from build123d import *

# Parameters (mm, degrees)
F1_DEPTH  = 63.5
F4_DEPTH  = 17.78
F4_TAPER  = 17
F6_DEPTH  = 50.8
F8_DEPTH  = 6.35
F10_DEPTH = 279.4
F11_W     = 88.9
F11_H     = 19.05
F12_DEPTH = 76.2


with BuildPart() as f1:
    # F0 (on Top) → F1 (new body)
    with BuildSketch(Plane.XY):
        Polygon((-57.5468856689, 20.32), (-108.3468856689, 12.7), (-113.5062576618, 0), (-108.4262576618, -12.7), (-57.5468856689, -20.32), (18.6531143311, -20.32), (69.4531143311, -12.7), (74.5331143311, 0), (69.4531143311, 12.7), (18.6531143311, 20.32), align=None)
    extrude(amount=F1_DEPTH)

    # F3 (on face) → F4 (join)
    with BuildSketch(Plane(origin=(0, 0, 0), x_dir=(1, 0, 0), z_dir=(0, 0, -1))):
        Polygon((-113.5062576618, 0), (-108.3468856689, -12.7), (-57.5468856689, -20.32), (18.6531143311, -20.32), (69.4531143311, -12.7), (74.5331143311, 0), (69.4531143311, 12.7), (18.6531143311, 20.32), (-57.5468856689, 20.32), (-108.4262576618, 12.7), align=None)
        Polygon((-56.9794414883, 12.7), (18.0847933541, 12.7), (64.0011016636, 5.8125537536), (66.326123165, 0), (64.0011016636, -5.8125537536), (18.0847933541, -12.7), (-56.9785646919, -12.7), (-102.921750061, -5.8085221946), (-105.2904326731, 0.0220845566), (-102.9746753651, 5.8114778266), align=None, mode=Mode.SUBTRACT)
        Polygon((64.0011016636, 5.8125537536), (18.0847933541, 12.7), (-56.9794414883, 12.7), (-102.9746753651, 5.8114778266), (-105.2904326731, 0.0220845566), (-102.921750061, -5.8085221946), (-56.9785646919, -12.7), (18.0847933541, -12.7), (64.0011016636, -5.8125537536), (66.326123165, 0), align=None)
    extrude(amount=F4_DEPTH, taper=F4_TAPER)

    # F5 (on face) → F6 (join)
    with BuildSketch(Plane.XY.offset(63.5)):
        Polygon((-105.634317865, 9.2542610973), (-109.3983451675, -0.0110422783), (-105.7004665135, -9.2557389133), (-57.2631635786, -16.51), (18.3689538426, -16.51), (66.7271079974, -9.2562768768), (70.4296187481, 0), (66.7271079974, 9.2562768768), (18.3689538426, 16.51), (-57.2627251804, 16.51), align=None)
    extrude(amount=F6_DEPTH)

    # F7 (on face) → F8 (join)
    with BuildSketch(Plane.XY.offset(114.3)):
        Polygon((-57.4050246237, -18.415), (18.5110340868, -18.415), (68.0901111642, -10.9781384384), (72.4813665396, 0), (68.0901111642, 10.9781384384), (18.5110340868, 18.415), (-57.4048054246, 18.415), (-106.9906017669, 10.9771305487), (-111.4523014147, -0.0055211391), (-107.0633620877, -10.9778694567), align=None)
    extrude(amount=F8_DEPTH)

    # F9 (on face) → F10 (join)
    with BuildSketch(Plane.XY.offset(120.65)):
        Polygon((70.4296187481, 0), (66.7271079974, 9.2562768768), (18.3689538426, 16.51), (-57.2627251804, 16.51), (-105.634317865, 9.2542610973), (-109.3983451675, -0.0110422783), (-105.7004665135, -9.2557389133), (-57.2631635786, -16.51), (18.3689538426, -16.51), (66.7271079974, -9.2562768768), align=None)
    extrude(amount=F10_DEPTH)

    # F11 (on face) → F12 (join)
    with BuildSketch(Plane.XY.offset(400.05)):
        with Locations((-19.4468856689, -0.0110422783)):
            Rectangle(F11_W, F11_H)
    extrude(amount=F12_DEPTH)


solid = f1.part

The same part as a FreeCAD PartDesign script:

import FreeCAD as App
import Part
import Sketcher
from FreeCAD import Vector
Q = App.Units.Quantity

doc = App.newDocument("Part")
body = doc.addObject("PartDesign::Body", "Body")

# Sketch on XY plane
sketch1 = body.newObject("Sketcher::SketchObject", "Sketch")
sketch1.AttachmentSupport = (doc.getObject("XY_Plane"), [""])
sketch1.MapMode = "FlatFace"
sketch1.addGeometry(Part.LineSegment(Vector(-57.546886, 20.32, 0), Vector(-108.346886, 12.7, 0)), False)
sketch1.addGeometry(Part.LineSegment(Vector(-108.346886, 12.7, 0), Vector(-113.506258, 0, 0)), False)
sketch1.addGeometry(Part.LineSegment(Vector(-113.506258, 0, 0), Vector(-108.426258, -12.7, 0)), False)
sketch1.addGeometry(Part.LineSegment(Vector(-108.426258, -12.7, 0), Vector(-57.546886, -20.32, 0)), False)
sketch1.addGeometry(Part.LineSegment(Vector(-57.546886, -20.32, 0), Vector(18.653114, -20.32, 0)), False)
sketch1.addGeometry(Part.LineSegment(Vector(18.653114, -20.32, 0), Vector(69.453114, -12.7, 0)), False)
sketch1.addGeometry(Part.LineSegment(Vector(69.453114, -12.7, 0), Vector(74.533114, 0, 0)), False)
sketch1.addGeometry(Part.LineSegment(Vector(74.533114, 0, 0), Vector(69.453114, 12.7, 0)), False)
sketch1.addGeometry(Part.LineSegment(Vector(69.453114, 12.7, 0), Vector(18.653114, 20.32, 0)), False)
sketch1.addGeometry(Part.LineSegment(Vector(18.653114, 20.32, 0), Vector(-57.546886, 20.32, 0)), False)
sketch1.addConstraint(Sketcher.Constraint("Coincident", 0, 2, 1, 1))
sketch1.addConstraint(Sketcher.Constraint("Coincident", 1, 2, 2, 1))
sketch1.addConstraint(Sketcher.Constraint("Coincident", 2, 2, 3, 1))
sketch1.addConstraint(Sketcher.Constraint("Coincident", 3, 2, 4, 1))
sketch1.addConstraint(Sketcher.Constraint("Coincident", 4, 2, 5, 1))
sketch1.addConstraint(Sketcher.Constraint("Coincident", 5, 2, 6, 1))
sketch1.addConstraint(Sketcher.Constraint("Coincident", 6, 2, 7, 1))
sketch1.addConstraint(Sketcher.Constraint("Coincident", 7, 2, 8, 1))
sketch1.addConstraint(Sketcher.Constraint("Coincident", 8, 2, 9, 1))
sketch1.addConstraint(Sketcher.Constraint("Coincident", 9, 2, 0, 1))
sketch1.addConstraint(Sketcher.Constraint("Horizontal", 4))
sketch1.addConstraint(Sketcher.Constraint("Horizontal", 9))
sketch1.addConstraint(Sketcher.Constraint("Symmetric", 5, 2, 7, 2, -1))
sketch1.addConstraint(Sketcher.Constraint("Symmetric", 4, 2, 8, 2, -1))
sketch1.addConstraint(Sketcher.Constraint("PointOnObject", 1, 2, -1))
sketch1.addConstraint(Sketcher.Constraint("PointOnObject", 6, 2, -1))
sketch1.addConstraint(Sketcher.Constraint("Parallel", 0, 5))
sketch1.addConstraint(Sketcher.Constraint("Parallel", 2, 7))
sketch1.addConstraint(Sketcher.Constraint("Horizontal", 2, 2, 5, 2))
sketch1.addConstraint(Sketcher.Constraint("Horizontal", 0, 2, 7, 2))
sketch1.addConstraint(Sketcher.Constraint("Vertical", 3, 2, 9, 2))
sketch1.addConstraint(Sketcher.Constraint("DistanceX", 4, 1, 4, 2, Q("3 in")))
sketch1.addConstraint(Sketcher.Constraint("DistanceY", 2, 2, 0, 2, Q("1 in")))
sketch1.addConstraint(Sketcher.Constraint("DistanceX", 0, 2, 3, 2, Q("2 in")))
sketch1.addConstraint(Sketcher.Constraint("DistanceY", 3, 2, -1, 1, Q("0.8 in")))
sketch1.addConstraint(Sketcher.Constraint("DistanceX", 1, 2, 2, 2, Q("0.2 in")))
sketch1.addConstraint(Sketcher.Constraint("DistanceX", 1, 2, 0, 2, Q("0.2031249 in")))
sketch1.addConstraint(Sketcher.Constraint("DistanceX", 0, 2, -1, 1, 108.346886))
pad1 = body.newObject("PartDesign::Pad", "Pad")
pad1.Profile = sketch1
pad1.Length = Q("2.5 in")

# Sketch on XY plane
sketch2 = body.newObject("Sketcher::SketchObject", "Sketch001")
sketch2.AttachmentSupport = (doc.getObject("XY_Plane"), [""])
sketch2.MapMode = "FlatFace"
sketch2.addGeometry(Part.LineSegment(Vector(-113.506258, 0, 0), Vector(-108.346886, 12.7, 0)), False)
sketch2.addGeometry(Part.LineSegment(Vector(-108.346886, 12.7, 0), Vector(-57.546886, 20.32, 0)), False)
sketch2.addGeometry(Part.LineSegment(Vector(-57.546886, 20.32, 0), Vector(18.653114, 20.32, 0)), False)
sketch2.addGeometry(Part.LineSegment(Vector(18.653114, 20.32, 0), Vector(69.453114, 12.7, 0)), False)
sketch2.addGeometry(Part.LineSegment(Vector(69.453114, 12.7, 0), Vector(74.533114, 0, 0)), False)
sketch2.addGeometry(Part.LineSegment(Vector(74.533114, 0, 0), Vector(69.453114, -12.7, 0)), False)
sketch2.addGeometry(Part.LineSegment(Vector(69.453114, -12.7, 0), Vector(18.653114, -20.32, 0)), False)
sketch2.addGeometry(Part.LineSegment(Vector(18.653114, -20.32, 0), Vector(-57.546886, -20.32, 0)), False)
sketch2.addGeometry(Part.LineSegment(Vector(-57.546886, -20.32, 0), Vector(-108.426258, -12.7, 0)), False)
sketch2.addGeometry(Part.LineSegment(Vector(-108.426258, -12.7, 0), Vector(-113.506258, 0, 0)), False)
sketch2.addConstraint(Sketcher.Constraint("Coincident", 0, 2, 1, 1))
sketch2.addConstraint(Sketcher.Constraint("Coincident", 1, 2, 2, 1))
sketch2.addConstraint(Sketcher.Constraint("Coincident", 2, 2, 3, 1))
sketch2.addConstraint(Sketcher.Constraint("Coincident", 3, 2, 4, 1))
sketch2.addConstraint(Sketcher.Constraint("Coincident", 4, 2, 5, 1))
sketch2.addConstraint(Sketcher.Constraint("Coincident", 5, 2, 6, 1))
sketch2.addConstraint(Sketcher.Constraint("Coincident", 6, 2, 7, 1))
sketch2.addConstraint(Sketcher.Constraint("Coincident", 7, 2, 8, 1))
sketch2.addConstraint(Sketcher.Constraint("Coincident", 8, 2, 9, 1))
sketch2.addConstraint(Sketcher.Constraint("Coincident", 9, 2, 0, 1))
sketch2.addConstraint(Sketcher.Constraint("Horizontal", 2))
sketch2.addConstraint(Sketcher.Constraint("Horizontal", 7))
sketch2.addConstraint(Sketcher.Constraint("Symmetric", 3, 2, 5, 2, -1))
sketch2.addConstraint(Sketcher.Constraint("Symmetric", 2, 2, 6, 2, -1))
sketch2.addConstraint(Sketcher.Constraint("PointOnObject", 4, 2, -1))
sketch2.addConstraint(Sketcher.Constraint("PointOnObject", 9, 2, -1))
sketch2.addConstraint(Sketcher.Constraint("Parallel", 1, 6))
sketch2.addConstraint(Sketcher.Constraint("Parallel", 4, 9))
sketch2.addConstraint(Sketcher.Constraint("Horizontal", 0, 2, 3, 2))
sketch2.addConstraint(Sketcher.Constraint("Horizontal", 5, 2, 8, 2))
sketch2.addConstraint(Sketcher.Constraint("Vertical", 1, 2, 7, 2))
sketch2.addConstraint(Sketcher.Constraint("DistanceX", 2, 1, 2, 2, Q("3 in")))
sketch2.addConstraint(Sketcher.Constraint("DistanceX", 0, 2, 1, 2, Q("2 in")))
sketch2.addConstraint(Sketcher.Constraint("DistanceY", 5, 2, 3, 2, Q("1 in")))
sketch2.addConstraint(Sketcher.Constraint("DistanceY", -1, 1, 1, 2, Q("0.8 in")))
sketch2.addConstraint(Sketcher.Constraint("DistanceX", 3, 2, 4, 2, Q("0.2 in")))
sketch2.addConstraint(Sketcher.Constraint("DistanceX", 9, 2, 0, 2, Q("0.2031249 in")))
sketch2.addConstraint(Sketcher.Constraint("DistanceX", 0, 2, -1, 1, 108.346886))
pad2 = body.newObject("PartDesign::Pad", "Pad001")
pad2.Profile = sketch2
pad2.Length = Q("0.7 in")
pad2.Reversed = True
pad2.TaperAngle = -17

# Sketch on XY plane
sketch3 = body.newObject("Sketcher::SketchObject", "Sketch002")
sketch3.AttachmentSupport = (doc.getObject("XY_Plane"), [""])
sketch3.MapMode = "FlatFace"
sketch3.AttachmentOffset = App.Placement(Vector(0, 0, 2.5 * 25.4), App.Rotation())
sketch3.addGeometry(Part.LineSegment(Vector(-105.634318, 9.254261, 0), Vector(-109.398345, -0.011042, 0)), False)
sketch3.addGeometry(Part.LineSegment(Vector(-109.398345, -0.011042, 0), Vector(-105.700467, -9.255739, 0)), False)
sketch3.addGeometry(Part.LineSegment(Vector(-105.700467, -9.255739, 0), Vector(-57.263164, -16.51, 0)), False)
sketch3.addGeometry(Part.LineSegment(Vector(-57.263164, -16.51, 0), Vector(18.368954, -16.51, 0)), False)
sketch3.addGeometry(Part.LineSegment(Vector(18.368954, -16.51, 0), Vector(66.727108, -9.256277, 0)), False)
sketch3.addGeometry(Part.LineSegment(Vector(66.727108, -9.256277, 0), Vector(70.429619, 0, 0)), False)
sketch3.addGeometry(Part.LineSegment(Vector(70.429619, 0, 0), Vector(66.727108, 9.256277, 0)), False)
sketch3.addGeometry(Part.LineSegment(Vector(66.727108, 9.256277, 0), Vector(18.368954, 16.51, 0)), False)
sketch3.addGeometry(Part.LineSegment(Vector(18.368954, 16.51, 0), Vector(-57.262725, 16.51, 0)), False)
sketch3.addGeometry(Part.LineSegment(Vector(-57.262725, 16.51, 0), Vector(-105.634318, 9.254261, 0)), False)
sketch3.addConstraint(Sketcher.Constraint("Coincident", 0, 2, 1, 1))
sketch3.addConstraint(Sketcher.Constraint("Coincident", 1, 2, 2, 1))
sketch3.addConstraint(Sketcher.Constraint("Coincident", 2, 2, 3, 1))
sketch3.addConstraint(Sketcher.Constraint("Coincident", 3, 2, 4, 1))
sketch3.addConstraint(Sketcher.Constraint("Coincident", 4, 2, 5, 1))
sketch3.addConstraint(Sketcher.Constraint("Coincident", 5, 2, 6, 1))
sketch3.addConstraint(Sketcher.Constraint("Coincident", 6, 2, 7, 1))
sketch3.addConstraint(Sketcher.Constraint("Coincident", 7, 2, 8, 1))
sketch3.addConstraint(Sketcher.Constraint("Coincident", 8, 2, 9, 1))
sketch3.addConstraint(Sketcher.Constraint("Coincident", 9, 2, 0, 1))
sketch3.addConstraint(Sketcher.Constraint("Horizontal", 3))
sketch3.addConstraint(Sketcher.Constraint("Horizontal", 8))
sketch3.addConstraint(Sketcher.Constraint("Symmetric", 4, 2, 6, 2, -1))
sketch3.addConstraint(Sketcher.Constraint("Symmetric", 3, 2, 7, 2, -1))
sketch3.addConstraint(Sketcher.Constraint("PointOnObject", 5, 2, -1))
sketch3.addConstraint(Sketcher.Constraint("Parallel", 1, 6))
sketch3.addConstraint(Sketcher.Constraint("Parallel", 4, 9))
sketch3.addConstraint(Sketcher.Constraint("DistanceY", 3, 2, 7, 2, Q("1.3 in")))
sketch3.addConstraint(Sketcher.Constraint("DistanceX", 8, 2, 8, 1, 75.631679))
sketch3.addConstraint(Sketcher.Constraint("DistanceX", 0, 2, 3, 2, 127.767299))
sketch3.addConstraint(Sketcher.Constraint("DistanceY", 1, 2, 9, 2, 18.51))
sketch3.addConstraint(Sketcher.Constraint("Distance", 2, 48.977511))
sketch3.addConstraint(Sketcher.Constraint("DistanceX", 3, 1, 3, 2, 75.632117))
sketch3.addConstraint(Sketcher.Constraint("DistanceY", 1, 2, -1, 1, 9.255739))
sketch3.addConstraint(Sketcher.Constraint("DistanceX", -1, 1, 5, 2, 70.429619))
sketch3.addConstraint(Sketcher.Constraint("DistanceX", 2, 2, 4, 2, 123.990272))
sketch3.addConstraint(Sketcher.Constraint("DistanceX", 4, 2, 5, 2, 3.702511))
sketch3.addConstraint(Sketcher.Constraint("DistanceX", 1, 2, 9, 2, 0.066149))
pad3 = body.newObject("PartDesign::Pad", "Pad002")
pad3.Profile = sketch3
pad3.Length = Q("2 in")

# Sketch on XY plane
sketch4 = body.newObject("Sketcher::SketchObject", "Sketch003")
sketch4.AttachmentSupport = (doc.getObject("XY_Plane"), [""])
sketch4.MapMode = "FlatFace"
sketch4.AttachmentOffset = App.Placement(Vector(0, 0, 4.5 * 25.4), App.Rotation())
sketch4.addGeometry(Part.LineSegment(Vector(-57.405025, -18.415, 0), Vector(18.511034, -18.415, 0)), False)
sketch4.addGeometry(Part.LineSegment(Vector(18.511034, -18.415, 0), Vector(68.090111, -10.978138, 0)), False)
sketch4.addGeometry(Part.LineSegment(Vector(68.090111, -10.978138, 0), Vector(72.481367, 0, 0)), False)
sketch4.addGeometry(Part.LineSegment(Vector(72.481367, 0, 0), Vector(68.090111, 10.978138, 0)), False)
sketch4.addGeometry(Part.LineSegment(Vector(68.090111, 10.978138, 0), Vector(18.511034, 18.415, 0)), False)
sketch4.addGeometry(Part.LineSegment(Vector(18.511034, 18.415, 0), Vector(-57.404805, 18.415, 0)), False)
sketch4.addGeometry(Part.LineSegment(Vector(-57.404805, 18.415, 0), Vector(-106.990602, 10.977131, 0)), False)
sketch4.addGeometry(Part.LineSegment(Vector(-106.990602, 10.977131, 0), Vector(-111.452301, -0.005521, 0)), False)
sketch4.addGeometry(Part.LineSegment(Vector(-111.452301, -0.005521, 0), Vector(-107.063362, -10.977869, 0)), False)
sketch4.addGeometry(Part.LineSegment(Vector(-107.063362, -10.977869, 0), Vector(-57.405025, -18.415, 0)), False)
sketch4.addConstraint(Sketcher.Constraint("Coincident", 0, 2, 1, 1))
sketch4.addConstraint(Sketcher.Constraint("Coincident", 1, 2, 2, 1))
sketch4.addConstraint(Sketcher.Constraint("Coincident", 2, 2, 3, 1))
sketch4.addConstraint(Sketcher.Constraint("Coincident", 3, 2, 4, 1))
sketch4.addConstraint(Sketcher.Constraint("Coincident", 4, 2, 5, 1))
sketch4.addConstraint(Sketcher.Constraint("Coincident", 5, 2, 6, 1))
sketch4.addConstraint(Sketcher.Constraint("Coincident", 6, 2, 7, 1))
sketch4.addConstraint(Sketcher.Constraint("Coincident", 7, 2, 8, 1))
sketch4.addConstraint(Sketcher.Constraint("Coincident", 8, 2, 9, 1))
sketch4.addConstraint(Sketcher.Constraint("Coincident", 9, 2, 0, 1))
sketch4.addConstraint(Sketcher.Constraint("Horizontal", 0))
sketch4.addConstraint(Sketcher.Constraint("Horizontal", 5))
sketch4.addConstraint(Sketcher.Constraint("Symmetric", 1, 2, 3, 2, -1))
sketch4.addConstraint(Sketcher.Constraint("Symmetric", 0, 2, 4, 2, -1))
sketch4.addConstraint(Sketcher.Constraint("PointOnObject", 2, 2, -1))
sketch4.addConstraint(Sketcher.Constraint("Parallel", 1, 6))
sketch4.addConstraint(Sketcher.Constraint("Parallel", 3, 8))
sketch4.addConstraint(Sketcher.Constraint("DistanceY", 0, 2, 4, 2, Q("1.45 in")))
sketch4.addConstraint(Sketcher.Constraint("DistanceX", 0, 1, 0, 2, 75.916059))
sketch4.addConstraint(Sketcher.Constraint("DistanceX", 5, 2, 5, 1, 75.91584))
sketch4.addConstraint(Sketcher.Constraint("DistanceX", 6, 2, -1, 1, 106.990602))
sketch4.addConstraint(Sketcher.Constraint("DistanceX", 7, 2, -1, 1, 111.452301))
sketch4.addConstraint(Sketcher.Constraint("DistanceY", 8, 2, 6, 2, 21.955))
sketch4.addConstraint(Sketcher.Constraint("Distance", 1, 50.133739))
sketch4.addConstraint(Sketcher.Constraint("Distance", 7, 11.854341))
sketch4.addConstraint(Sketcher.Constraint("Distance", 8, 11.817581))
sketch4.addConstraint(Sketcher.Constraint("DistanceX", -1, 1, 1, 2, 68.090111))
sketch4.addConstraint(Sketcher.Constraint("DistanceY", 1, 2, -1, 1, 10.978138))
pad4 = body.newObject("PartDesign::Pad", "Pad003")
pad4.Profile = sketch4
pad4.Length = Q("0.25 in")

# Sketch on XY plane
sketch5 = body.newObject("Sketcher::SketchObject", "Sketch004")
sketch5.AttachmentSupport = (doc.getObject("XY_Plane"), [""])
sketch5.MapMode = "FlatFace"
sketch5.AttachmentOffset = App.Placement(Vector(0, 0, 4.75 * 25.4), App.Rotation())
sketch5.addGeometry(Part.LineSegment(Vector(70.429619, 0, 0), Vector(66.727108, 9.256277, 0)), False)
sketch5.addGeometry(Part.LineSegment(Vector(66.727108, 9.256277, 0), Vector(18.368954, 16.51, 0)), False)
sketch5.addGeometry(Part.LineSegment(Vector(18.368954, 16.51, 0), Vector(-57.262725, 16.51, 0)), False)
sketch5.addGeometry(Part.LineSegment(Vector(-57.262725, 16.51, 0), Vector(-105.634318, 9.254261, 0)), False)
sketch5.addGeometry(Part.LineSegment(Vector(-105.634318, 9.254261, 0), Vector(-109.398345, -0.011042, 0)), False)
sketch5.addGeometry(Part.LineSegment(Vector(-109.398345, -0.011042, 0), Vector(-105.700467, -9.255739, 0)), False)
sketch5.addGeometry(Part.LineSegment(Vector(-105.700467, -9.255739, 0), Vector(-57.263164, -16.51, 0)), False)
sketch5.addGeometry(Part.LineSegment(Vector(-57.263164, -16.51, 0), Vector(18.368954, -16.51, 0)), False)
sketch5.addGeometry(Part.LineSegment(Vector(18.368954, -16.51, 0), Vector(66.727108, -9.256277, 0)), False)
sketch5.addGeometry(Part.LineSegment(Vector(66.727108, -9.256277, 0), Vector(70.429619, 0, 0)), False)
sketch5.addConstraint(Sketcher.Constraint("Coincident", 0, 2, 1, 1))
sketch5.addConstraint(Sketcher.Constraint("Coincident", 1, 2, 2, 1))
sketch5.addConstraint(Sketcher.Constraint("Coincident", 2, 2, 3, 1))
sketch5.addConstraint(Sketcher.Constraint("Coincident", 3, 2, 4, 1))
sketch5.addConstraint(Sketcher.Constraint("Coincident", 4, 2, 5, 1))
sketch5.addConstraint(Sketcher.Constraint("Coincident", 5, 2, 6, 1))
sketch5.addConstraint(Sketcher.Constraint("Coincident", 6, 2, 7, 1))
sketch5.addConstraint(Sketcher.Constraint("Coincident", 7, 2, 8, 1))
sketch5.addConstraint(Sketcher.Constraint("Coincident", 8, 2, 9, 1))
sketch5.addConstraint(Sketcher.Constraint("Coincident", 9, 2, 0, 1))
sketch5.addConstraint(Sketcher.Constraint("Horizontal", 2))
sketch5.addConstraint(Sketcher.Constraint("Horizontal", 7))
sketch5.addConstraint(Sketcher.Constraint("Symmetric", 1, 2, 7, 2, -1))
sketch5.addConstraint(Sketcher.Constraint("Symmetric", 0, 2, 8, 2, -1))
sketch5.addConstraint(Sketcher.Constraint("PointOnObject", 9, 2, -1))
sketch5.addConstraint(Sketcher.Constraint("Parallel", 0, 5))
sketch5.addConstraint(Sketcher.Constraint("Parallel", 3, 8))
sketch5.addConstraint(Sketcher.Constraint("DistanceY", 6, 2, 2, 2, Q("1.3 in")))
sketch5.addConstraint(Sketcher.Constraint("DistanceX", 2, 2, 2, 1, 75.631679))
sketch5.addConstraint(Sketcher.Constraint("DistanceX", 4, 2, 1, 2, 127.767299))
sketch5.addConstraint(Sketcher.Constraint("DistanceY", 5, 2, 3, 2, 18.51))
sketch5.addConstraint(Sketcher.Constraint("Distance", 6, 48.977511))
sketch5.addConstraint(Sketcher.Constraint("DistanceX", 7, 1, 7, 2, 75.632117))
sketch5.addConstraint(Sketcher.Constraint("DistanceY", -1, 1, 3, 2, 9.254261))
sketch5.addConstraint(Sketcher.Constraint("DistanceX", -1, 1, 9, 2, 70.429619))
sketch5.addConstraint(Sketcher.Constraint("DistanceX", 3, 2, 1, 2, 124.003272))
sketch5.addConstraint(Sketcher.Constraint("DistanceY", 4, 2, 0, 2, 9.267319))
sketch5.addConstraint(Sketcher.Constraint("DistanceX", 6, 2, 8, 2, 123.990272))
pad5 = body.newObject("PartDesign::Pad", "Pad004")
pad5.Profile = sketch5
pad5.Length = Q("11 in")

# Sketch on XY plane
sketch6 = body.newObject("Sketcher::SketchObject", "Sketch005")
sketch6.AttachmentSupport = (doc.getObject("XY_Plane"), [""])
sketch6.MapMode = "FlatFace"
sketch6.AttachmentOffset = App.Placement(Vector(0, 0, 15.75 * 25.4), App.Rotation())
sketch6.addGeometry(Part.LineSegment(Vector(-63.896886, 9.513958, 0), Vector(-63.896886, -9.536042, 0)), False)
sketch6.addGeometry(Part.LineSegment(Vector(-63.896886, -9.536042, 0), Vector(25.003114, -9.536042, 0)), False)
sketch6.addGeometry(Part.LineSegment(Vector(25.003114, -9.536042, 0), Vector(25.003114, 9.513958, 0)), False)
sketch6.addGeometry(Part.LineSegment(Vector(25.003114, 9.513958, 0), Vector(-63.896886, 9.513958, 0)), False)
sketch6.addConstraint(Sketcher.Constraint("Coincident", 0, 2, 1, 1))
sketch6.addConstraint(Sketcher.Constraint("Coincident", 1, 2, 2, 1))
sketch6.addConstraint(Sketcher.Constraint("Coincident", 2, 2, 3, 1))
sketch6.addConstraint(Sketcher.Constraint("Coincident", 3, 2, 0, 1))
sketch6.addConstraint(Sketcher.Constraint("Vertical", 0))
sketch6.addConstraint(Sketcher.Constraint("Horizontal", 1))
sketch6.addConstraint(Sketcher.Constraint("Vertical", 2))
sketch6.addConstraint(Sketcher.Constraint("Horizontal", 3))
sketch6.addConstraint(Sketcher.Constraint("DistanceX", 1, 1, 1, 2, Q("3.5 in")))
sketch6.addConstraint(Sketcher.Constraint("DistanceY", 0, 2, 0, 1, Q("0.75 in")))
sketch6.addConstraint(Sketcher.Constraint("DistanceX", 0, 2, -1, 1, 63.896886))
sketch6.addConstraint(Sketcher.Constraint("DistanceY", 0, 2, -1, 1, 9.536042))
pad6 = body.newObject("PartDesign::Pad", "Pad005")
pad6.Profile = sketch6
pad6.Length = Q("3 in")

doc.recompute()
